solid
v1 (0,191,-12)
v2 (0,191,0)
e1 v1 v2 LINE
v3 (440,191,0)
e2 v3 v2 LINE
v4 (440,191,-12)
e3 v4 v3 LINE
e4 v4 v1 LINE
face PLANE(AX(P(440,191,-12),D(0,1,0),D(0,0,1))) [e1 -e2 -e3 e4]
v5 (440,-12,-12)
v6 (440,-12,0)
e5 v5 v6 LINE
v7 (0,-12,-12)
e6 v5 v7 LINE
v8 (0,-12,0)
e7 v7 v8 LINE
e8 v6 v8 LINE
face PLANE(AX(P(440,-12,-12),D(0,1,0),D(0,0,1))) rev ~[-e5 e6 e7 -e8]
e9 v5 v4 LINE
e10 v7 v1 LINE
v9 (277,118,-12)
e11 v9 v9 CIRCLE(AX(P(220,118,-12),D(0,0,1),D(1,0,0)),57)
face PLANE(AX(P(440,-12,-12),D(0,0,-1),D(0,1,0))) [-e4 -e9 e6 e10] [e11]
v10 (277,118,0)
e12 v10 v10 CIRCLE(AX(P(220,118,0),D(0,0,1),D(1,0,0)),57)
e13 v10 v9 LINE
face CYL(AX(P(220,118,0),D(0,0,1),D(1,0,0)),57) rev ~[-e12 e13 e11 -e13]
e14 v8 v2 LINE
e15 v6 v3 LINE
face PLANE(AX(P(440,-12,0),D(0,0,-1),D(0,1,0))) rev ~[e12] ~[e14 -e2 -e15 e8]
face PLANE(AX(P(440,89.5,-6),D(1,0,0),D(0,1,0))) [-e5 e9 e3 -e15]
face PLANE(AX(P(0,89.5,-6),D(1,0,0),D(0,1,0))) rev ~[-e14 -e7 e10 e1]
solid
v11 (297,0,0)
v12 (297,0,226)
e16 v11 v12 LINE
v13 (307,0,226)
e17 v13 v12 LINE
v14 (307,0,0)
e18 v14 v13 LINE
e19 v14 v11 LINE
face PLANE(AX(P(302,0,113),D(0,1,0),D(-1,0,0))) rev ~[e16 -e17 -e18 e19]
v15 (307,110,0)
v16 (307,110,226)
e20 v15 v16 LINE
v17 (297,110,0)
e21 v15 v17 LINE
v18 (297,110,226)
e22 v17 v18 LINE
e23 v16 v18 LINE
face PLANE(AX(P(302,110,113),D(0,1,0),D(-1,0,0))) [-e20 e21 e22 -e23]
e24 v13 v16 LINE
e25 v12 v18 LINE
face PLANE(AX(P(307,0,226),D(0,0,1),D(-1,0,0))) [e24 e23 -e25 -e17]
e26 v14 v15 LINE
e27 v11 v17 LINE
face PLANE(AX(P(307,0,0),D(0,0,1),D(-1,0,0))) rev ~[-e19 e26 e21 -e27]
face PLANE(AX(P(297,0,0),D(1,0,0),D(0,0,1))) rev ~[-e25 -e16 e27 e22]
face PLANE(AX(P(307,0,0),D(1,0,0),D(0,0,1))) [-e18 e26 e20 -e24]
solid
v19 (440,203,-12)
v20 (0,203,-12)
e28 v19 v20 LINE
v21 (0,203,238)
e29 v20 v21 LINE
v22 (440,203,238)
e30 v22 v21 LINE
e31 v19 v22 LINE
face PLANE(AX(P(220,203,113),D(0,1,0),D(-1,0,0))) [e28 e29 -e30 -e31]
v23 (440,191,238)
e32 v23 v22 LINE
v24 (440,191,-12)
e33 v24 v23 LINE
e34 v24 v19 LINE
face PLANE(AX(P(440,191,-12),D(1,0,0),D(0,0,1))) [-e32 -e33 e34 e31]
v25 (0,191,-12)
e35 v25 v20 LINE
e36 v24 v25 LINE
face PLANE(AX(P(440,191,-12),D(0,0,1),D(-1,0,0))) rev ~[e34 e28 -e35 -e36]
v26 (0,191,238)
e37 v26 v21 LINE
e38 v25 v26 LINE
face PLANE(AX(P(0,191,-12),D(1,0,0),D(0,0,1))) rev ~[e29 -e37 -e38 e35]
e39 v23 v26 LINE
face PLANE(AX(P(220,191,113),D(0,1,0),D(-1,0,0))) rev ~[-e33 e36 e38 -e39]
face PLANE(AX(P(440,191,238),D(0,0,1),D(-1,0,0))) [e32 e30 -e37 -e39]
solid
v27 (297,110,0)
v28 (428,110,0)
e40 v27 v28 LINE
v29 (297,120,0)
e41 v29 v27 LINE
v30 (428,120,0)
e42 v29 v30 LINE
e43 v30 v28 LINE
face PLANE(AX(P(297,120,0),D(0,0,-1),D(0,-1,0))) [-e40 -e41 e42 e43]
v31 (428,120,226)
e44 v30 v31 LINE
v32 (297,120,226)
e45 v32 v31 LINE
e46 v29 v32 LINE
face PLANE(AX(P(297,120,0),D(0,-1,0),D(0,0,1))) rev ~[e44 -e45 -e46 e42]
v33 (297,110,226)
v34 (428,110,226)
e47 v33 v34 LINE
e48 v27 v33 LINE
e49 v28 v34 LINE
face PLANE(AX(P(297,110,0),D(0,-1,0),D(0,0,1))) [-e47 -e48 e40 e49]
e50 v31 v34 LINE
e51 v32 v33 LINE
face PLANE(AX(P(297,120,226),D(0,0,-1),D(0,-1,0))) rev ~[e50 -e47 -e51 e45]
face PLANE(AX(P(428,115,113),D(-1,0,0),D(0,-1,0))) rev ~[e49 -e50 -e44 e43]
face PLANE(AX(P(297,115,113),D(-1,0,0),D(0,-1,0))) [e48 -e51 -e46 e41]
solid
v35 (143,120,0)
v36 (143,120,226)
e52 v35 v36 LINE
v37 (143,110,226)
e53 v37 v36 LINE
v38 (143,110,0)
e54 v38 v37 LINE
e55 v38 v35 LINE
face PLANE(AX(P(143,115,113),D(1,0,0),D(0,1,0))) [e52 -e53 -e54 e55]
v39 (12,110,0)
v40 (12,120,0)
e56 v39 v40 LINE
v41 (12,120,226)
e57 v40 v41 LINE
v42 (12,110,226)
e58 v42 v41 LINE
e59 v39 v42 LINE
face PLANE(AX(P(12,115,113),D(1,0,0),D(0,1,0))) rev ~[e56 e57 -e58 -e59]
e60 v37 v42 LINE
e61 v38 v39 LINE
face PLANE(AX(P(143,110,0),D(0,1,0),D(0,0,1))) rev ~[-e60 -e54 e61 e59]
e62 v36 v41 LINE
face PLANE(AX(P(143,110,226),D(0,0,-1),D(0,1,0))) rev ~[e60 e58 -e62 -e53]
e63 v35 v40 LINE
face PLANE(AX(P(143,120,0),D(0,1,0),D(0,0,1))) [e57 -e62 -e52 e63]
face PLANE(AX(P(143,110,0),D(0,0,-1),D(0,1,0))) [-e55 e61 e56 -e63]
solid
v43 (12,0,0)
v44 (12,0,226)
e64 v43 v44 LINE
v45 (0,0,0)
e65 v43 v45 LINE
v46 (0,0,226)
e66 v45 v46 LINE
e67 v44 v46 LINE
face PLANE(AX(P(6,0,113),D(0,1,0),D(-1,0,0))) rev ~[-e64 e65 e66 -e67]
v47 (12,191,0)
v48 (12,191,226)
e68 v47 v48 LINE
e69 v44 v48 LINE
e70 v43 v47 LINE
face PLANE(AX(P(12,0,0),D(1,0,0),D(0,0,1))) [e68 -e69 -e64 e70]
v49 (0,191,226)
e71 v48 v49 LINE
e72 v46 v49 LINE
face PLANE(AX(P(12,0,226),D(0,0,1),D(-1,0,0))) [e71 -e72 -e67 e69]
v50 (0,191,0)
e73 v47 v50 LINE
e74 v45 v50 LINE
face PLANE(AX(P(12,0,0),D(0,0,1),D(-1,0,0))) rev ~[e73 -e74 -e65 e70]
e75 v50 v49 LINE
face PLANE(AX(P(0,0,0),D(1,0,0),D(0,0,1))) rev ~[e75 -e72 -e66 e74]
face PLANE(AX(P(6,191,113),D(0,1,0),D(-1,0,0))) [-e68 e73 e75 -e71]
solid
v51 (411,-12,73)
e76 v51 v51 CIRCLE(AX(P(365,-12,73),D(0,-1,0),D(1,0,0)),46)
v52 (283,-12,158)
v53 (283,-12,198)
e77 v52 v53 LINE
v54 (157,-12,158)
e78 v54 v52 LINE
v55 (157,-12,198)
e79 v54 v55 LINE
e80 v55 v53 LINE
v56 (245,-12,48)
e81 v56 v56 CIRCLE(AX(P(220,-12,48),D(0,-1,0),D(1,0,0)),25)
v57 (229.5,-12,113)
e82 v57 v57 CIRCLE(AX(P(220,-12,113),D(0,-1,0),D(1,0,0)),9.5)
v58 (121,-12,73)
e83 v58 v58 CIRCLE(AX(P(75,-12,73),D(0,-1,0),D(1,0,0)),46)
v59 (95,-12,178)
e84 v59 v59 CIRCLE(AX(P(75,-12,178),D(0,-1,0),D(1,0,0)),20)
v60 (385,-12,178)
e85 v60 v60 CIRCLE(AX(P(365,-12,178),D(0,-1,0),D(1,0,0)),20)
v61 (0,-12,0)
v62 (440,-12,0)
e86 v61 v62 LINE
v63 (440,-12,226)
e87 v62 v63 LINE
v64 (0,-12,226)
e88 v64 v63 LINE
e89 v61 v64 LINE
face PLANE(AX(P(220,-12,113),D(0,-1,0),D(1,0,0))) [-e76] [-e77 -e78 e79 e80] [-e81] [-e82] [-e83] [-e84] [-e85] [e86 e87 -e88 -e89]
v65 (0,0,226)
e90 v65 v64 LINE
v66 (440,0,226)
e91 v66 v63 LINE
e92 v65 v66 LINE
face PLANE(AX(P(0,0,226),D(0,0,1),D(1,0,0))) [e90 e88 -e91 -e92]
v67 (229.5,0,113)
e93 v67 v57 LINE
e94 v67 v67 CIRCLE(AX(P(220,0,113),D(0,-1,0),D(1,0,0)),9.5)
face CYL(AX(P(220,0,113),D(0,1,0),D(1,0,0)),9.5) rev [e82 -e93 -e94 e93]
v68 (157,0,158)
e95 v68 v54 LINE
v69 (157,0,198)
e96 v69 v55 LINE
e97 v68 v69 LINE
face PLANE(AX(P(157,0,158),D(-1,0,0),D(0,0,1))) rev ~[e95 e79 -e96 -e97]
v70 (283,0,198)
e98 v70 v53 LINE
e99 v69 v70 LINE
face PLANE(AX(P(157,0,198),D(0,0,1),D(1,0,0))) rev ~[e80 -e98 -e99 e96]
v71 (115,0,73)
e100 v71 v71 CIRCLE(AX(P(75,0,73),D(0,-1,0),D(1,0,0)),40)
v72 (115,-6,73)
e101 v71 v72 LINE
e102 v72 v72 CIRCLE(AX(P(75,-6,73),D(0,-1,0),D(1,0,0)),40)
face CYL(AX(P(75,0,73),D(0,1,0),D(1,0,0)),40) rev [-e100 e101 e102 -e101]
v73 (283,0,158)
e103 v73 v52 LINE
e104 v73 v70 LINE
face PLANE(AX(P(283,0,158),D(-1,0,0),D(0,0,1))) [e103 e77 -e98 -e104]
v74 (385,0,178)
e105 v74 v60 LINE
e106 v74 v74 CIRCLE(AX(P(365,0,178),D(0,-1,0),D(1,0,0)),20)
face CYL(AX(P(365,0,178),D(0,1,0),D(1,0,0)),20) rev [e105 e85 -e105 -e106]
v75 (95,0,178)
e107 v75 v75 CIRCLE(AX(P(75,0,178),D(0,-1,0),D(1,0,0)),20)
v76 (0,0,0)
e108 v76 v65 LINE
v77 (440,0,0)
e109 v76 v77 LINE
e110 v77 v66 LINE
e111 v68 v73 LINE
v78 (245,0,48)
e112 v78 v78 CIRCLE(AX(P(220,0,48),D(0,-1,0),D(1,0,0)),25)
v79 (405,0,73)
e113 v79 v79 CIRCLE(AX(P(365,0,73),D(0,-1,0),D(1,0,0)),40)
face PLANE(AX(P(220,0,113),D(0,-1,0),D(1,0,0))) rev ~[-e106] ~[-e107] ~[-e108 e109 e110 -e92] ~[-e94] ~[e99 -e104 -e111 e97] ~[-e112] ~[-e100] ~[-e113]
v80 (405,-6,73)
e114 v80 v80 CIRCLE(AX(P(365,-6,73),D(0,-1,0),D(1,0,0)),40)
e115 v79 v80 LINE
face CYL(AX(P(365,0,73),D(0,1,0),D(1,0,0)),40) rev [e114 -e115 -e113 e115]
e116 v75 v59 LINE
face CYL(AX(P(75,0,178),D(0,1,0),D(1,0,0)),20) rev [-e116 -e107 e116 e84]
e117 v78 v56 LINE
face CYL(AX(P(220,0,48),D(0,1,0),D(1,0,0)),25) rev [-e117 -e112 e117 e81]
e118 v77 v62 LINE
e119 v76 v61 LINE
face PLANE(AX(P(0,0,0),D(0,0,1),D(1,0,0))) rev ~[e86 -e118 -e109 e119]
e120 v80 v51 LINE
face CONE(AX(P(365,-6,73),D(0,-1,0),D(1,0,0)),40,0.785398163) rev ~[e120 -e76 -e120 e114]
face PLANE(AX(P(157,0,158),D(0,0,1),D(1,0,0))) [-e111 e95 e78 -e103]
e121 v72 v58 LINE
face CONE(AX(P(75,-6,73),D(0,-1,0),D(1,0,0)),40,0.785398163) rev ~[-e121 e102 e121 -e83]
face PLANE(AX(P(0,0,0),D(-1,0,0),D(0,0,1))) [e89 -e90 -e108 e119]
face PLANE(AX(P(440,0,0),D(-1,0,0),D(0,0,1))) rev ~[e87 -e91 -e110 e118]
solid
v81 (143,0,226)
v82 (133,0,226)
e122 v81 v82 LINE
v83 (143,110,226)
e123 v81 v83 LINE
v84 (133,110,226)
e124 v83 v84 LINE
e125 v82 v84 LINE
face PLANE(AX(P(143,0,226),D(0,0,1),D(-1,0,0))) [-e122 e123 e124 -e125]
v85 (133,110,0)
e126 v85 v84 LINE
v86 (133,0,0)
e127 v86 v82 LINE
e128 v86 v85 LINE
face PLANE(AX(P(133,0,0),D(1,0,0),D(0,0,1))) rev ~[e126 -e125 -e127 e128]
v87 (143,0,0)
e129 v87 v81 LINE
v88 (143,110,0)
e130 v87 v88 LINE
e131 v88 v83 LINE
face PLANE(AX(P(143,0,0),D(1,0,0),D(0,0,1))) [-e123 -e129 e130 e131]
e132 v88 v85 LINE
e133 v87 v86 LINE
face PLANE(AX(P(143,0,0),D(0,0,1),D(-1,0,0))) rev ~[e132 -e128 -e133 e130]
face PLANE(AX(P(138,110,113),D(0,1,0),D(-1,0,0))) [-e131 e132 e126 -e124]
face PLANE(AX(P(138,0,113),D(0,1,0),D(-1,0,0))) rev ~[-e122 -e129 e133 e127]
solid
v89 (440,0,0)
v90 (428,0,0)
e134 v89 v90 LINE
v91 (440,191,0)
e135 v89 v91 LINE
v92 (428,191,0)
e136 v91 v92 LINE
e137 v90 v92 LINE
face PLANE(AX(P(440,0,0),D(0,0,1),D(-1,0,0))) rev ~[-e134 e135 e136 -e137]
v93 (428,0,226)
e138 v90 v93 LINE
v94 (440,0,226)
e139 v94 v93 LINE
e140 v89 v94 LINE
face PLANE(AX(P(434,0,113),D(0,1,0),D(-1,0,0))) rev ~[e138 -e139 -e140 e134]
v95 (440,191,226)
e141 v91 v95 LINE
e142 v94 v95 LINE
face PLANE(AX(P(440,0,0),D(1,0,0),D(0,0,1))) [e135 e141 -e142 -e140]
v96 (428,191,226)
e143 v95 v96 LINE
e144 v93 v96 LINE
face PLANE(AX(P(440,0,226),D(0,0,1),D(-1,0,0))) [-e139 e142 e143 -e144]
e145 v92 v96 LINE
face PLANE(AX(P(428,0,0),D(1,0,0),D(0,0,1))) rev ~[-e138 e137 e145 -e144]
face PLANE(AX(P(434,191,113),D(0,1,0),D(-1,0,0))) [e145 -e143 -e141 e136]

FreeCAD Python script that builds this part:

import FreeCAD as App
import Part
import Sketcher


def edges_at(feature, points):
    """Names of the edges that pass closest to the given points."""
    edges = feature.Shape.Edges
    near = lambda p: min(range(len(edges)), key=lambda i: edges[i].distToShape(Part.Vertex(*p))[0])
    return sorted({f"Edge{near(p) + 1}" for p in points})


def add_polygon(sketch, points):
    """Adds a closed chain of lines whose ends are joined by coincident constraints."""
    first, n = sketch.GeometryCount, len(points)
    for a, b in zip(points, points[1:] + points[:1]):
        sketch.addGeometry(Part.LineSegment(App.Vector(*a, 0), App.Vector(*b, 0)), False)
    for i in range(n):
        sketch.addConstraint(Sketcher.Constraint("Coincident", first + i, 2, first + (i + 1) % n, 1))

doc = App.newDocument("Part")
body = doc.addObject("PartDesign::Body", "Body")

# Sketch on XZ plane
sketch1 = body.newObject("Sketcher::SketchObject", "Sketch")
sketch1.AttachmentSupport = (doc.getObject("XZ_Plane"), [""])
sketch1.MapMode = "FlatFace"
add_polygon(sketch1, [(0, 226), (0, 0), (440, 0), (440, 226)])  # lines 0-3
sketch1.addGeometry(Part.Circle(App.Vector(75, 73, 0), App.Vector(0, 0, 1), 40), False)  # 4
sketch1.addGeometry(Part.Circle(App.Vector(220, 48, 0), App.Vector(0, 0, 1), 25), False)  # 5
sketch1.addGeometry(Part.Circle(App.Vector(365, 73, 0), App.Vector(0, 0, 1), 40), False)  # 6
sketch1.addGeometry(Part.Circle(App.Vector(75, 178, 0), App.Vector(0, 0, 1), 20), False)  # 7
sketch1.addGeometry(Part.Circle(App.Vector(220, 113, 0), App.Vector(0, 0, 1), 10), False)  # 8
add_polygon(sketch1, [(283, 158), (157, 158), (157, 198), (283, 198)])  # lines 9-12
sketch1.addGeometry(Part.Circle(App.Vector(365, 178, 0), App.Vector(0, 0, 1), 20), False)  # 13
sketch1.addConstraint([
    Sketcher.Constraint("Vertical", 0),
    Sketcher.Constraint("Horizontal", 1),
    Sketcher.Constraint("Vertical", 2),
    Sketcher.Constraint("Horizontal", 3),
    Sketcher.Constraint("Horizontal", 9),
    Sketcher.Constraint("Vertical", 10),
    Sketcher.Constraint("Horizontal", 11),
    Sketcher.Constraint("Vertical", 12),
    Sketcher.Constraint("Coincident", 0, 2, -1, 1),
    Sketcher.Constraint("Equal", 4, 6),
    Sketcher.Constraint("Equal", 7, 13),
    Sketcher.Constraint("Horizontal", 4, 3, 6, 3),
    Sketcher.Constraint("Horizontal", 7, 3, 13, 3),
    Sketcher.Constraint("Vertical", 4, 3, 7, 3),
    Sketcher.Constraint("Vertical", 5, 3, 8, 3),
    Sketcher.Constraint("Vertical", 6, 3, 13, 3),
    Sketcher.Constraint("Diameter", 4, 80.0),
    Sketcher.Constraint("Diameter", 5, 50.0),
    Sketcher.Constraint("Diameter", 7, 40.0),
    Sketcher.Constraint("Diameter", 8, 19.0),
    Sketcher.Constraint("DistanceX", 1, 1, 1, 2, 440.0),
    Sketcher.Constraint("DistanceX", 9, 2, 9, 1, 126.0),
    Sketcher.Constraint("DistanceY", 0, 2, 0, 1, 226.0),
    Sketcher.Constraint("DistanceY", 10, 1, 10, 2, 40.0),
    Sketcher.Constraint("DistanceX", -1, 1, 4, 3, 75.0),
    Sketcher.Constraint("DistanceY", -1, 1, 4, 3, 73.0),
    Sketcher.Constraint("DistanceX", -1, 1, 5, 3, 220.0),
    Sketcher.Constraint("DistanceY", -1, 1, 5, 3, 48.0),
    Sketcher.Constraint("DistanceX", -1, 1, 6, 3, 365.0),
    Sketcher.Constraint("DistanceY", -1, 1, 7, 3, 178.0),
    Sketcher.Constraint("DistanceY", -1, 1, 8, 3, 113.0),
    Sketcher.Constraint("DistanceX", -1, 1, 9, 2, 157.0),
    Sketcher.Constraint("DistanceY", -1, 1, 9, 2, 158.0),
])
pad1 = body.newObject("PartDesign::Pad", "Pad")
pad1.Profile = sketch1
pad1.Length = 12
doc.recompute()

chamfer = body.newObject("PartDesign::Chamfer", "Chamfer")
chamfer.Base = (pad1, edges_at(pad1, [(325, -12, 73), (35, -12, 73)]))
chamfer.Size = 6
body2 = doc.addObject("PartDesign::Body", "Body001")
body2.AllowCompound = True

# Sketch on XZ plane
sketch2 = body2.newObject("Sketcher::SketchObject", "Sketch001")
sketch2.AttachmentSupport = (doc.getObject("XZ_Plane001"), [""])
sketch2.MapMode = "FlatFace"
add_polygon(sketch2, [(440, 226), (440, 0), (428, 0), (428, 226)])  # lines 0-3
add_polygon(sketch2, [(12, 226), (12, 0), (0, 0), (0, 226)])  # lines 4-7
sketch2.addConstraint([
    Sketcher.Constraint("Vertical", 0),
    Sketcher.Constraint("Horizontal", 1),
    Sketcher.Constraint("Vertical", 2),
    Sketcher.Constraint("Horizontal", 3),
    Sketcher.Constraint("Vertical", 4),
    Sketcher.Constraint("Horizontal", 5),
    Sketcher.Constraint("Vertical", 6),
    Sketcher.Constraint("Horizontal", 7),
    Sketcher.Constraint("Coincident", 5, 2, -1, 1),
    Sketcher.Constraint("PointOnObject", 0, 2, -1),
    Sketcher.Constraint("Horizontal", 3, 2, 6, 2),
    Sketcher.Constraint("Equal", 3, 5),
    Sketcher.Constraint("DistanceX", 1, 2, 1, 1, 12.0),
    Sketcher.Constraint("DistanceY", 0, 2, 0, 1, 226.0),
    Sketcher.Constraint("DistanceX", -1, 1, 0, 2, 440.0),
])
pad2 = body2.newObject("PartDesign::Pad", "Pad001")
pad2.Profile = sketch2
pad2.Length = 191
pad2.Reversed = True
body3 = doc.addObject("PartDesign::Body", "Body002")
body3.AllowCompound = True

# Sketch on XZ plane
sketch3 = body3.newObject("Sketcher::SketchObject", "Sketch002")
sketch3.AttachmentSupport = (doc.getObject("XZ_Plane002"), [""])
sketch3.MapMode = "FlatFace"
add_polygon(sketch3, [(307, 226), (307, 0), (297, 0), (297, 226)])  # lines 0-3
add_polygon(sketch3, [(143, 226), (143, 0), (133, 0), (133, 226)])  # lines 4-7
sketch3.addConstraint([
    Sketcher.Constraint("Vertical", 0),
    Sketcher.Constraint("Horizontal", 1),
    Sketcher.Constraint("Vertical", 2),
    Sketcher.Constraint("Horizontal", 3),
    Sketcher.Constraint("Vertical", 4),
    Sketcher.Constraint("Horizontal", 5),
    Sketcher.Constraint("Vertical", 6),
    Sketcher.Constraint("Horizontal", 7),
    Sketcher.Constraint("PointOnObject", 0, 2, -1),
    Sketcher.Constraint("PointOnObject", 4, 2, -1),
    Sketcher.Constraint("Horizontal", 3, 2, 6, 2),
    Sketcher.Constraint("Equal", 3, 5),
    Sketcher.Constraint("DistanceX", 1, 2, 1, 1, 10.0),
    Sketcher.Constraint("DistanceY", 0, 2, 0, 1, 226.0),
    Sketcher.Constraint("DistanceX", -1, 1, 0, 2, 307.0),
    Sketcher.Constraint("DistanceX", -1, 1, 4, 2, 143.0),
])
pad3 = body3.newObject("PartDesign::Pad", "Pad002")
pad3.Profile = sketch3
pad3.Length = 110
pad3.Reversed = True
body4 = doc.addObject("PartDesign::Body", "Body003")

# Sketch on YZ plane
sketch4 = body4.newObject("Sketcher::SketchObject", "Sketch003")
sketch4.AttachmentSupport = (doc.getObject("YZ_Plane003"), [""])
sketch4.MapMode = "FlatFace"
sketch4.AttachmentOffset = App.Placement(App.Vector(0, 0, 297), App.Rotation())
add_polygon(sketch4, [(120, 226), (120, 0), (110, 0), (110, 226)])  # lines 0-3
sketch4.addConstraint([
    Sketcher.Constraint("Vertical", 0),
    Sketcher.Constraint("Horizontal", 1),
    Sketcher.Constraint("Vertical", 2),
    Sketcher.Constraint("Horizontal", 3),
    Sketcher.Constraint("PointOnObject", 0, 2, -1),
    Sketcher.Constraint("DistanceX", 1, 2, 1, 1, 10.0),
    Sketcher.Constraint("DistanceY", 0, 2, 0, 1, 226.0),
    Sketcher.Constraint("DistanceX", -1, 1, 0, 2, 120.0),
])
pad4 = body4.newObject("PartDesign::Pad", "Pad003")
pad4.Profile = sketch4
pad4.Length = 131
body5 = doc.addObject("PartDesign::Body", "Body004")

# Sketch on YZ plane
sketch5 = body5.newObject("Sketcher::SketchObject", "Sketch004")
sketch5.AttachmentSupport = (doc.getObject("YZ_Plane004"), [""])
sketch5.MapMode = "FlatFace"
sketch5.AttachmentOffset = App.Placement(App.Vector(0, 0, 143), App.Rotation())
add_polygon(sketch5, [(110, 226), (110, 0), (120, 0), (120, 226)])  # lines 0-3
sketch5.addConstraint([
    Sketcher.Constraint("Vertical", 0),
    Sketcher.Constraint("Horizontal", 1),
    Sketcher.Constraint("Vertical", 2),
    Sketcher.Constraint("Horizontal", 3),
    Sketcher.Constraint("PointOnObject", 0, 2, -1),
    Sketcher.Constraint("DistanceX", 1, 1, 1, 2, 10.0),
    Sketcher.Constraint("DistanceY", 0, 2, 0, 1, 226.0),
    Sketcher.Constraint("DistanceX", -1, 1, 0, 2, 110.0),
])
pad5 = body5.newObject("PartDesign::Pad", "Pad004")
pad5.Profile = sketch5
pad5.Length = 131
pad5.Reversed = True
body6 = doc.addObject("PartDesign::Body", "Body005")

# Sketch on YZ plane
sketch6 = body6.newObject("Sketcher::SketchObject", "Sketch005")
sketch6.AttachmentSupport = (doc.getObject("YZ_Plane005"), [""])
sketch6.MapMode = "FlatFace"
sketch6.AttachmentOffset = App.Placement(App.Vector(0, 0, 440), App.Rotation())
add_polygon(sketch6, [(-12, 0), (-12, -12), (191, -12), (191, 0)])  # lines 0-3
sketch6.addConstraint([
    Sketcher.Constraint("Vertical", 0),
    Sketcher.Constraint("Horizontal", 1),
    Sketcher.Constraint("Vertical", 2),
    Sketcher.Constraint("Horizontal", 3),
    Sketcher.Constraint("PointOnObject", 2, 2, -1),
    Sketcher.Constraint("DistanceX", 1, 1, 1, 2, 203.0),
    Sketcher.Constraint("DistanceY", 0, 2, 0, 1, 12.0),
    Sketcher.Constraint("DistanceX", 0, 2, -1, 1, 12.0),
])
pad6 = body6.newObject("PartDesign::Pad", "Pad005")
pad6.Profile = sketch6
pad6.Length = 440
pad6.Reversed = True

# Sketch on XY plane
sketch7 = body6.newObject("Sketcher::SketchObject", "Sketch006")
sketch7.AttachmentSupport = (doc.getObject("XY_Plane005"), [""])
sketch7.MapMode = "FlatFace"
sketch7.addGeometry(Part.Circle(App.Vector(220, 118, 0), App.Vector(0, 0, 1), 57), False)
sketch7.addConstraint([
    Sketcher.Constraint("Diameter", 0, 114.0),
    Sketcher.Constraint("DistanceX", -1, 1, 0, 3, 220.0),
    Sketcher.Constraint("DistanceY", -1, 1, 0, 3, 118.0),
])
pocket1 = body6.newObject("PartDesign::Pocket", "Pocket")
pocket1.Profile = sketch7
pocket1.Length = 12
body7 = doc.addObject("PartDesign::Body", "Body006")

# Sketch on XZ plane
sketch8 = body7.newObject("Sketcher::SketchObject", "Sketch007")
sketch8.AttachmentSupport = (doc.getObject("XZ_Plane006"), [""])
sketch8.MapMode = "FlatFace"
sketch8.AttachmentOffset = App.Placement(App.Vector(0, 0, -191), App.Rotation())
add_polygon(sketch8, [(440, 238), (440, -12), (0, -12), (0, 238)])  # lines 0-3
sketch8.addConstraint([
    Sketcher.Constraint("Vertical", 0),
    Sketcher.Constraint("Horizontal", 1),
    Sketcher.Constraint("Vertical", 2),
    Sketcher.Constraint("Horizontal", 3),
    Sketcher.Constraint("PointOnObject", 1, 2, -2),
    Sketcher.Constraint("DistanceX", 1, 2, 1, 1, 440.0),
    Sketcher.Constraint("DistanceY", 0, 2, 0, 1, 250.0),
    Sketcher.Constraint("DistanceY", 0, 2, -1, 1, 12.0),
])
pad7 = body7.newObject("PartDesign::Pad", "Pad006")
pad7.Profile = sketch8
pad7.Length = 12
pad7.Reversed = True

doc.recompute()
